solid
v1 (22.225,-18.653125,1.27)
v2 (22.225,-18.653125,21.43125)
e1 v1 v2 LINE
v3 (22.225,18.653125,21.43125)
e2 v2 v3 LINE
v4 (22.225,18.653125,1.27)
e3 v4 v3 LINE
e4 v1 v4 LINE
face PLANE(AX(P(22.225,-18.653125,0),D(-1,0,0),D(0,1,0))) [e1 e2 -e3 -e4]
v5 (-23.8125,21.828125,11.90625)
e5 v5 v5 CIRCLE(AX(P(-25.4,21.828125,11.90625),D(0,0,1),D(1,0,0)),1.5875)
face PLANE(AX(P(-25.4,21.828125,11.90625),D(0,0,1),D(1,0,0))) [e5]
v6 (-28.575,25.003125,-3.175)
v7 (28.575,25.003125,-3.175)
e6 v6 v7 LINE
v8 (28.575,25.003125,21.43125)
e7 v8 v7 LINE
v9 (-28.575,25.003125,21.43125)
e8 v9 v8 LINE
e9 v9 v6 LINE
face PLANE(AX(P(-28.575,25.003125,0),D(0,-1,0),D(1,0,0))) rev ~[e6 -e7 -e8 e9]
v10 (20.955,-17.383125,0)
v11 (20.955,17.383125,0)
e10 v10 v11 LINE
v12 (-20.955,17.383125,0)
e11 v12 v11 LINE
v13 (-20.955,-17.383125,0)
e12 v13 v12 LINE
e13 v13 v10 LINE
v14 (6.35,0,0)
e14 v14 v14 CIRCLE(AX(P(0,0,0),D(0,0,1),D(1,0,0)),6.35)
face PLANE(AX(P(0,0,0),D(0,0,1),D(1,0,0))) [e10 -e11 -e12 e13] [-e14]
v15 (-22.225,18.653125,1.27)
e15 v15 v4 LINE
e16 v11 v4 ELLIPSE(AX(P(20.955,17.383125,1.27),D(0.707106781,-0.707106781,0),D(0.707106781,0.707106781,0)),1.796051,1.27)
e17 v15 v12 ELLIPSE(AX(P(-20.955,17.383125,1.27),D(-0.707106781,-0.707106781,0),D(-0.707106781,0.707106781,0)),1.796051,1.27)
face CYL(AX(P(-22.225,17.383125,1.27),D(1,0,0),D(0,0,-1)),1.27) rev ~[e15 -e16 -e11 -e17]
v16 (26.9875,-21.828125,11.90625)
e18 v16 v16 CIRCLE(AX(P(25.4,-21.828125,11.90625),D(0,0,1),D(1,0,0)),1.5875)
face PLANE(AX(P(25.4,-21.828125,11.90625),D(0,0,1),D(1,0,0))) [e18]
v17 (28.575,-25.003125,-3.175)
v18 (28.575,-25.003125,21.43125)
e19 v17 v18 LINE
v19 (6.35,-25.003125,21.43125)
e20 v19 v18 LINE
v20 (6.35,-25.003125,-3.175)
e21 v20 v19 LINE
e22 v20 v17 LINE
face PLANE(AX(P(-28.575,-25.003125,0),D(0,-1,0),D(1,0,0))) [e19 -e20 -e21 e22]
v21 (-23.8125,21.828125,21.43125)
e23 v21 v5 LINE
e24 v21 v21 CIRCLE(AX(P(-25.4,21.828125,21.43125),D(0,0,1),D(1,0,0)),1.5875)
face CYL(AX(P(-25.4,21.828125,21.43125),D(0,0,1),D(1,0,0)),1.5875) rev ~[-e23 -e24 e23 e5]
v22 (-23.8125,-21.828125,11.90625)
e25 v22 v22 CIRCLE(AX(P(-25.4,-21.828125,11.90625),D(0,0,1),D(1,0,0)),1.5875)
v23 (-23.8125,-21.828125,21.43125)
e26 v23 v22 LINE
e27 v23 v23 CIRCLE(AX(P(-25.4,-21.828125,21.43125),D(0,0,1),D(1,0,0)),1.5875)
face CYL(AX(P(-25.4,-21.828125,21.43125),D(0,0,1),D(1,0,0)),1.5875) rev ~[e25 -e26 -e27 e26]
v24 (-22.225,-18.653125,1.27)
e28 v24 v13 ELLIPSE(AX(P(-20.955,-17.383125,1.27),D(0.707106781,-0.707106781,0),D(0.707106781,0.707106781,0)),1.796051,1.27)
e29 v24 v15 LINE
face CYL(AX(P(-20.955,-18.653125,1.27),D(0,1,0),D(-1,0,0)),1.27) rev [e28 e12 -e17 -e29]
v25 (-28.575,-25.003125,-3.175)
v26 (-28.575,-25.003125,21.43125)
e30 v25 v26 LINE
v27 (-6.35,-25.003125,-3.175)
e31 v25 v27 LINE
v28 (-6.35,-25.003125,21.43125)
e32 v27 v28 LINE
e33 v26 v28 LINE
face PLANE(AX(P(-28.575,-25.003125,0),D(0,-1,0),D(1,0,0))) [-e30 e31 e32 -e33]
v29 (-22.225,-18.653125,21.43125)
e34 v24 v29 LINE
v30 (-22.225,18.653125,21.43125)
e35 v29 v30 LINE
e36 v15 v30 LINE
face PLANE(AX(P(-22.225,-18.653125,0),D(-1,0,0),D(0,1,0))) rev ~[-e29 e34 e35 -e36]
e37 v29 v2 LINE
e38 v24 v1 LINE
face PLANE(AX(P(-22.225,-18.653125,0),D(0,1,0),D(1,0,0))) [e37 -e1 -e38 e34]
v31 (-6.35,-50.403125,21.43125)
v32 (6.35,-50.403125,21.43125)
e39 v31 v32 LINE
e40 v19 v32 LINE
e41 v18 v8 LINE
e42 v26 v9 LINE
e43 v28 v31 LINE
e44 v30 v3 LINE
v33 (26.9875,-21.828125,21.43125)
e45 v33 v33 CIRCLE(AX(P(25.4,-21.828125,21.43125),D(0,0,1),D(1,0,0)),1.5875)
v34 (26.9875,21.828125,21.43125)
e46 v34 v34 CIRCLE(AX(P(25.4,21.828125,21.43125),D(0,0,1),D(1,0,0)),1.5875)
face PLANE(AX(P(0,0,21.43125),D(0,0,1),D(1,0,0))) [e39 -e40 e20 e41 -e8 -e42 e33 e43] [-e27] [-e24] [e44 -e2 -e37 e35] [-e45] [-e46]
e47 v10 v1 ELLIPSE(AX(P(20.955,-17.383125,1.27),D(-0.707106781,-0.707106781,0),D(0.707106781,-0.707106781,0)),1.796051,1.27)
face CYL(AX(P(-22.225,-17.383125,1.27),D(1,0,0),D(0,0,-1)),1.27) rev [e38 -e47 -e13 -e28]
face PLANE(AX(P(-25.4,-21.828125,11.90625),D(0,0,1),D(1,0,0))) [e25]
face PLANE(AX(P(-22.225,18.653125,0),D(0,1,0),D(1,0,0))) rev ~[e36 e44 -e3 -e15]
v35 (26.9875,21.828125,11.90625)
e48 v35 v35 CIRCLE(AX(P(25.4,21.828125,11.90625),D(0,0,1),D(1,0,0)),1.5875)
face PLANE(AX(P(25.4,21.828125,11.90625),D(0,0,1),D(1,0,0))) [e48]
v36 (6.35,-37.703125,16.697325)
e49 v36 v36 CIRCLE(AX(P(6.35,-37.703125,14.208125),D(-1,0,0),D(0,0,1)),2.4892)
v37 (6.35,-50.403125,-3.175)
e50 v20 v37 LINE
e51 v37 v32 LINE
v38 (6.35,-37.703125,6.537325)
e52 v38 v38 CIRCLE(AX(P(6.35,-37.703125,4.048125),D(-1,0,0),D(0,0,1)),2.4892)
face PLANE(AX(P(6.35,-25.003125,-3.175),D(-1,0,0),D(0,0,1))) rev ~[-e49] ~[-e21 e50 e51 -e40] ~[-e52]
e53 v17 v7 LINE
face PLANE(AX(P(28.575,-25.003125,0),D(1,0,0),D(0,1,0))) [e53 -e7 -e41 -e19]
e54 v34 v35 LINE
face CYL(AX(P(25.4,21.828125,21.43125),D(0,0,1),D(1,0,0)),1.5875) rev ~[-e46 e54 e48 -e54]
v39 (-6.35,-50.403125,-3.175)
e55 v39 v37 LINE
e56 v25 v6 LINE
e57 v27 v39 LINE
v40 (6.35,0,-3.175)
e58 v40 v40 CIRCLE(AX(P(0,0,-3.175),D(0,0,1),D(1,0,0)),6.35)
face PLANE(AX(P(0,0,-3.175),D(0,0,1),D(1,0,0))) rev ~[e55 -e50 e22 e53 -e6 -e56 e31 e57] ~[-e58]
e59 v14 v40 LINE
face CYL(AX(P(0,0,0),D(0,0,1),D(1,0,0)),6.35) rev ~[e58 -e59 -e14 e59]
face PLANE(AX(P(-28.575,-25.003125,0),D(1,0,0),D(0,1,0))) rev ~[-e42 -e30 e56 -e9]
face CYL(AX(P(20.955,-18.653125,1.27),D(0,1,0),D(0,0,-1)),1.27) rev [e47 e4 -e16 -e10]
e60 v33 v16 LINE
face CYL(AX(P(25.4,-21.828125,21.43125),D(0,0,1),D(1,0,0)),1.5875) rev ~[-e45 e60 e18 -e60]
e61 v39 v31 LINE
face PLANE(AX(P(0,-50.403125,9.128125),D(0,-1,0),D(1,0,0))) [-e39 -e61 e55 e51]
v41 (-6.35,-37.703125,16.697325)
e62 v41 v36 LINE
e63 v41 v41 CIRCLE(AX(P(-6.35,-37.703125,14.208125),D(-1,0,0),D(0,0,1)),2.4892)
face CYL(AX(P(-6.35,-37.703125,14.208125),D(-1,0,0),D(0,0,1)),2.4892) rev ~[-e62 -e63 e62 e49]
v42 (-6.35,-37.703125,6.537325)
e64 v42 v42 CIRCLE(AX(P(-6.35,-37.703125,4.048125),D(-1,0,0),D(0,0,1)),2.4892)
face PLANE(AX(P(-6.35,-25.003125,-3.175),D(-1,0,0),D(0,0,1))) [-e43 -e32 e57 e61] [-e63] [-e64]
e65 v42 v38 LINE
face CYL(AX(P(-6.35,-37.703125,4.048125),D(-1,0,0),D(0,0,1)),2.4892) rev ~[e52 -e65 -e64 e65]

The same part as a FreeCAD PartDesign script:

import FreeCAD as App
import Part
import Sketcher

V = App.Vector
Q = App.Units.Quantity


def edges_at(feature, points):
    """Names of the edges that pass closest to the given points."""
    edges = feature.Shape.Edges
    near = lambda p: min(range(len(edges)), key=lambda i: edges[i].distToShape(Part.Vertex(*p))[0])
    return sorted({f"Edge{near(p) + 1}" for p in points})

doc = App.newDocument("Part")
params = doc.addObject("Spreadsheet::Sheet", "Params")
for row, (alias, value) in enumerate([
    ("sketch1_width", "2.25 in"),
    ("sketch1_height", "1.96875 in"),
    ("sketch1_height2", "1.46875 in"),
    ("pad1_length", "0.84375 in"),
    ("sketch2_diameter", "0.5 in"),
    ("sketch2_width", "2.25 in"),
    ("sketch2_height", "1.96875 in"),
    ("pad2_length", "0.125 in"),
    ("fillet_radius", "0.05 in"),
    ("sketch3_diameter", "0.125 in"),
    ("pocket1_length", "0.375 in"),
    ("sketch4_width", "0.5 in"),
    ("sketch4_height", "0.96875 in"),
    ("pad3_length", "1 in"),
    ("sketch5_diameter", "0.196 in"),
    ("sketch6_diameter", "0.196 in"),
], start=1):
    params.set(f"A{row}", alias)
    params.set(f"B{row}", "=" + value)
    params.setAlias(f"B{row}", alias)

body = doc.addObject("PartDesign::Body", "Body")

# Sketch on XY plane
sketch1 = body.newObject("Sketcher::SketchObject", "Sketch")
sketch1.AttachmentSupport = (doc.getObject("XY_Plane"), [""])
sketch1.MapMode = "FlatFace"
sketch1.addGeometry(Part.LineSegment(V(-28.575, 25.003125, 0), V(-28.575, -25.003125, 0)), False)
sketch1.addGeometry(Part.LineSegment(V(-28.575, -25.003125, 0), V(28.575, -25.003125, 0)), False)
sketch1.addGeometry(Part.LineSegment(V(28.575, -25.003125, 0), V(28.575, 25.003125, 0)), False)
sketch1.addGeometry(Part.LineSegment(V(28.575, 25.003125, 0), V(-28.575, 25.003125, 0)), False)
sketch1.addGeometry(Part.LineSegment(V(22.225, -18.653125, 0), V(-22.225, -18.653125, 0)), False)
sketch1.addGeometry(Part.LineSegment(V(-22.225, -18.653125, 0), V(-22.225, 18.653125, 0)), False)
sketch1.addGeometry(Part.LineSegment(V(-22.225, 18.653125, 0), V(22.225, 18.653125, 0)), False)
sketch1.addGeometry(Part.LineSegment(V(22.225, 18.653125, 0), V(22.225, -18.653125, 0)), False)
sketch1.addConstraint(Sketcher.Constraint("Coincident", 0, 2, 1, 1))
sketch1.addConstraint(Sketcher.Constraint("Coincident", 1, 2, 2, 1))
sketch1.addConstraint(Sketcher.Constraint("Coincident", 2, 2, 3, 1))
sketch1.addConstraint(Sketcher.Constraint("Coincident", 3, 2, 0, 1))
sketch1.addConstraint(Sketcher.Constraint("Coincident", 4, 2, 5, 1))
sketch1.addConstraint(Sketcher.Constraint("Coincident", 5, 2, 6, 1))
sketch1.addConstraint(Sketcher.Constraint("Coincident", 6, 2, 7, 1))
sketch1.addConstraint(Sketcher.Constraint("Coincident", 7, 2, 4, 1))
sketch1.addConstraint(Sketcher.Constraint("Vertical", 0))
sketch1.addConstraint(Sketcher.Constraint("Horizontal", 1))
sketch1.addConstraint(Sketcher.Constraint("Vertical", 2))
sketch1.addConstraint(Sketcher.Constraint("Horizontal", 3))
sketch1.addConstraint(Sketcher.Constraint("Horizontal", 4))
sketch1.addConstraint(Sketcher.Constraint("Vertical", 5))
sketch1.addConstraint(Sketcher.Constraint("Horizontal", 6))
sketch1.addConstraint(Sketcher.Constraint("Vertical", 7))
sketch1.addConstraint(Sketcher.Constraint("Symmetric", 0, 2, 2, 2, -1, 1))
sketch1.addConstraint(Sketcher.Constraint("Symmetric", 4, 2, 6, 2, -1, 1))
sketch1.addConstraint(Sketcher.Constraint("DistanceX", 4, 2, 1, 2, Q("2 in")))
sketch1.addConstraint(Sketcher.Constraint("DistanceX", 1, 1, 1, 2, Q("2.25 in")))
sketch1.addConstraint(Sketcher.Constraint("DistanceY", 0, 2, 0, 1, Q("1.96875 in")))
sketch1.addConstraint(Sketcher.Constraint("DistanceY", 5, 1, 5, 2, Q("1.46875 in")))
sketch1.setExpression("Constraints[19]", "Params.sketch1_width")
sketch1.setExpression("Constraints[20]", "Params.sketch1_height")
sketch1.setExpression("Constraints[21]", "Params.sketch1_height2")
pad1 = body.newObject("PartDesign::Pad", "Pad")
pad1.Profile = sketch1
pad1.setExpression("Length", "Params.pad1_length")

# Sketch on XY plane
sketch2 = body.newObject("Sketcher::SketchObject", "Sketch001")
sketch2.AttachmentSupport = (doc.getObject("XY_Plane"), [""])
sketch2.MapMode = "FlatFace"
sketch2.addGeometry(Part.LineSegment(V(-28.575, 25.003125, 0), V(-28.575, -25.003125, 0)), False)
sketch2.addGeometry(Part.LineSegment(V(-28.575, -25.003125, 0), V(28.575, -25.003125, 0)), False)
sketch2.addGeometry(Part.LineSegment(V(28.575, -25.003125, 0), V(28.575, 25.003125, 0)), False)
sketch2.addGeometry(Part.LineSegment(V(28.575, 25.003125, 0), V(-28.575, 25.003125, 0)), False)
sketch2.addGeometry(Part.Circle(V(0, 0, 0), V(0, 0, 1), 6.35), False)
sketch2.addConstraint(Sketcher.Constraint("Coincident", 0, 2, 1, 1))
sketch2.addConstraint(Sketcher.Constraint("Coincident", 1, 2, 2, 1))
sketch2.addConstraint(Sketcher.Constraint("Coincident", 2, 2, 3, 1))
sketch2.addConstraint(Sketcher.Constraint("Coincident", 3, 2, 0, 1))
sketch2.addConstraint(Sketcher.Constraint("Vertical", 0))
sketch2.addConstraint(Sketcher.Constraint("Horizontal", 1))
sketch2.addConstraint(Sketcher.Constraint("Vertical", 2))
sketch2.addConstraint(Sketcher.Constraint("Horizontal", 3))
sketch2.addConstraint(Sketcher.Constraint("Coincident", 4, 3, -1, 1))
sketch2.addConstraint(Sketcher.Constraint("Symmetric", 0, 2, 2, 2, -1, 1))
sketch2.addConstraint(Sketcher.Constraint("Diameter", 4, Q("0.5 in")))
sketch2.addConstraint(Sketcher.Constraint("DistanceX", 1, 1, 1, 2, Q("2.25 in")))
sketch2.addConstraint(Sketcher.Constraint("DistanceY", 0, 2, 0, 1, Q("1.96875 in")))
sketch2.setExpression("Constraints[10]", "Params.sketch2_diameter")
sketch2.setExpression("Constraints[11]", "Params.sketch2_width")
sketch2.setExpression("Constraints[12]", "Params.sketch2_height")
pad2 = body.newObject("PartDesign::Pad", "Pad001")
pad2.Profile = sketch2
pad2.setExpression("Length", "Params.pad2_length")
pad2.Reversed = True
doc.recompute()

fillet = body.newObject("PartDesign::Fillet", "Fillet")
fillet.Base = (pad2, edges_at(pad2, [
    (-22.225, 0, 0),
    (0, -18.653, 0),
    (22.225, 0, 0),
    (0, 18.653, 0),
]))
fillet.setExpression("Radius", "Params.fillet_radius")

# Sketch on XY plane
sketch3 = body.newObject("Sketcher::SketchObject", "Sketch002")
sketch3.AttachmentSupport = (doc.getObject("XY_Plane"), [""])
sketch3.MapMode = "FlatFace"
sketch3.AttachmentOffset = App.Placement(V(0, 0, 0.84375 * 25.4), App.Rotation())
sketch3.addGeometry(Part.Circle(V(-25.4, 21.828125, 0), V(0, 0, 1), 1.5875), False)
sketch3.addGeometry(Part.Circle(V(25.4, 21.828125, 0), V(0, 0, 1), 1.5875), False)
sketch3.addGeometry(Part.Circle(V(25.4, -21.828125, 0), V(0, 0, 1), 1.5875), False)
sketch3.addGeometry(Part.Circle(V(-25.4, -21.828125, 0), V(0, 0, 1), 1.5875), False)
sketch3.addConstraint(Sketcher.Constraint("Equal", 0, 1))
sketch3.addConstraint(Sketcher.Constraint("Equal", 1, 2))
sketch3.addConstraint(Sketcher.Constraint("Equal", 2, 3))
sketch3.addConstraint(Sketcher.Constraint("Symmetric", 0, 3, 2, 3, -1, 1))
sketch3.addConstraint(Sketcher.Constraint("Symmetric", 1, 3, 3, 3, -1, 1))
sketch3.addConstraint(Sketcher.Constraint("Symmetric", 0, 3, 1, 3, -2))
sketch3.addConstraint(Sketcher.Constraint("Diameter", 0, Q("0.125 in")))
sketch3.addConstraint(Sketcher.Constraint("DistanceX", 0, 3, -1, 1, Q("1 in")))
sketch3.addConstraint(Sketcher.Constraint("DistanceY", -1, 1, 0, 3, Q("0.859375 in")))
sketch3.setExpression("Constraints[6]", "Params.sketch3_diameter")
pocket1 = body.newObject("PartDesign::Pocket", "Pocket")
pocket1.Profile = sketch3
pocket1.setExpression("Length", "Params.pocket1_length")

# Sketch on XZ plane
sketch4 = body.newObject("Sketcher::SketchObject", "Sketch003")
sketch4.AttachmentSupport = (doc.getObject("XZ_Plane"), [""])
sketch4.MapMode = "FlatFace"
sketch4.AttachmentOffset = App.Placement(V(0, 0, 0.984375 * 25.4), App.Rotation())
sketch4.addGeometry(Part.LineSegment(V(-6.35, 21.43125, 0), V(-6.35, -3.175, 0)), False)
sketch4.addGeometry(Part.LineSegment(V(-6.35, -3.175, 0), V(6.35, -3.175, 0)), False)
sketch4.addGeometry(Part.LineSegment(V(6.35, -3.175, 0), V(6.35, 21.43125, 0)), False)
sketch4.addGeometry(Part.LineSegment(V(6.35, 21.43125, 0), V(-6.35, 21.43125, 0)), False)
sketch4.addConstraint(Sketcher.Constraint("Coincident", 0, 2, 1, 1))
sketch4.addConstraint(Sketcher.Constraint("Coincident", 1, 2, 2, 1))
sketch4.addConstraint(Sketcher.Constraint("Coincident", 2, 2, 3, 1))
sketch4.addConstraint(Sketcher.Constraint("Coincident", 3, 2, 0, 1))
sketch4.addConstraint(Sketcher.Constraint("Vertical", 0))
sketch4.addConstraint(Sketcher.Constraint("Horizontal", 1))
sketch4.addConstraint(Sketcher.Constraint("Vertical", 2))
sketch4.addConstraint(Sketcher.Constraint("Horizontal", 3))
sketch4.addConstraint(Sketcher.Constraint("DistanceX", 1, 1, 1, 2, Q("0.5 in")))
sketch4.addConstraint(Sketcher.Constraint("DistanceY", 0, 2, 0, 1, Q("0.96875 in")))
sketch4.addConstraint(Sketcher.Constraint("DistanceX", 0, 2, -1, 1, Q("0.25 in")))
sketch4.addConstraint(Sketcher.Constraint("DistanceY", 0, 2, -1, 1, Q("0.125 in")))
sketch4.setExpression("Constraints[8]", "Params.sketch4_width")
sketch4.setExpression("Constraints[9]", "Params.sketch4_height")
pad3 = body.newObject("PartDesign::Pad", "Pad002")
pad3.Profile = sketch4
pad3.setExpression("Length", "Params.pad3_length")

# Sketch on YZ plane
sketch5 = body.newObject("Sketcher::SketchObject", "Sketch004")
sketch5.AttachmentSupport = (doc.getObject("YZ_Plane"), [""])
sketch5.MapMode = "FlatFace"
sketch5.AttachmentOffset = App.Placement(V(0, 0, -0.25 * 25.4), App.Rotation())
sketch5.addGeometry(Part.Circle(V(-37.703125, 4.048125, 0), V(0, 0, 1), 2.4892), False)
sketch5.addConstraint(Sketcher.Constraint("Diameter", 0, Q("0.196 in")))
sketch5.addConstraint(Sketcher.Constraint("DistanceX", 0, 3, -1, 1, Q("1.484375 in")))
sketch5.addConstraint(Sketcher.Constraint("DistanceY", -1, 1, 0, 3, Q("4.048125 mm")))
sketch5.setExpression("Constraints[0]", "Params.sketch5_diameter")
pocket2 = body.newObject("PartDesign::Pocket", "Pocket001")
pocket2.Profile = sketch5
pocket2.Type = "UpToFirst"
pocket2.Reversed = True

# Sketch on YZ plane
sketch6 = body.newObject("Sketcher::SketchObject", "Sketch005")
sketch6.AttachmentSupport = (doc.getObject("YZ_Plane"), [""])
sketch6.MapMode = "FlatFace"
sketch6.AttachmentOffset = App.Placement(V(0, 0, -0.25 * 25.4), App.Rotation())
sketch6.addGeometry(Part.Circle(V(-37.703125, 14.208125, 0), V(0, 0, 1), 2.4892), False)
sketch6.addConstraint(Sketcher.Constraint("Diameter", 0, Q("0.196 in")))
sketch6.addConstraint(Sketcher.Constraint("DistanceX", 0, 3, -1, 1, Q("1.484375 in")))
sketch6.addConstraint(Sketcher.Constraint("DistanceY", -1, 1, 0, 3, Q("14.208125 mm")))
sketch6.setExpression("Constraints[0]", "Params.sketch6_diameter")
pocket3 = body.newObject("PartDesign::Pocket", "Pocket002")
pocket3.Profile = sketch6
pocket3.Type = "UpToFirst"
pocket3.Reversed = True

doc.recompute()
